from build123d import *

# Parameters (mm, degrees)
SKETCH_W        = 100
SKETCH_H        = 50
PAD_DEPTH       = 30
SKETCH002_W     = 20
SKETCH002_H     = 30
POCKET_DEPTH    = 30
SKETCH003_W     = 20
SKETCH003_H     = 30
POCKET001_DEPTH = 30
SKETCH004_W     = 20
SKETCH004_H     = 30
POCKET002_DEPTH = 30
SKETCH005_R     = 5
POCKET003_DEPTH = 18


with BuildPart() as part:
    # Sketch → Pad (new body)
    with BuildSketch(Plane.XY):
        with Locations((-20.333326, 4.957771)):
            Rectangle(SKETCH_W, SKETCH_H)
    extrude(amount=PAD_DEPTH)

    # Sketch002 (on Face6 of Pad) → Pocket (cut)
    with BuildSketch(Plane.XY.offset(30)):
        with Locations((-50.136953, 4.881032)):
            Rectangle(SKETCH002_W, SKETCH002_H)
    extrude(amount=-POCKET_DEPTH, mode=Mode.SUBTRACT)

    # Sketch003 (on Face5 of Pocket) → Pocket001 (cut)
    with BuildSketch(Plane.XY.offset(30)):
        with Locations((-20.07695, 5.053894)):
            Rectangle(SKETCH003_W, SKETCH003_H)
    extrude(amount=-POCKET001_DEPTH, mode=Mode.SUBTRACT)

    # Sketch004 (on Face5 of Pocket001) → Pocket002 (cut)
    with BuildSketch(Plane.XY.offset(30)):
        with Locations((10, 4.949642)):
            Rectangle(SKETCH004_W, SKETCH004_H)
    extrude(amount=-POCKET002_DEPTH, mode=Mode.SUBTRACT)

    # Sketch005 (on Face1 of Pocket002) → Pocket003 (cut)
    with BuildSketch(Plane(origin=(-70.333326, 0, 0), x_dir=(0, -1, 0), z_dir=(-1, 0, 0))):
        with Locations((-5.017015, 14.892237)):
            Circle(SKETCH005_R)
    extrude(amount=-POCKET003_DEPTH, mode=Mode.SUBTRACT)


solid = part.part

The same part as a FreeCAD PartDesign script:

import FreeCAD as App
import Part
import Sketcher
Q = App.Units.Quantity

doc = App.newDocument("Part")
body = doc.addObject("PartDesign::Body", "Body")

sketch1 = body.newObject("Sketcher::SketchObject", "Sketch")
sketch1.AttachmentSupport = (doc.getObject("XY_Plane"), [""])
sketch1.MapMode = "FlatFace"
sketch1.addGeometry(Part.LineSegment(App.Vector(-70.333326, 29.957771, 0), App.Vector(-70.333326, -20.042229, 0)), False)
sketch1.addGeometry(Part.LineSegment(App.Vector(-70.333326, -20.042229, 0), App.Vector(29.666674, -20.042229, 0)), False)
sketch1.addGeometry(Part.LineSegment(App.Vector(29.666674, -20.042229, 0), App.Vector(29.666674, 29.957771, 0)), False)
sketch1.addGeometry(Part.LineSegment(App.Vector(29.666674, 29.957771, 0), App.Vector(-70.333326, 29.957771, 0)), False)
sketch1.addConstraint(Sketcher.Constraint("Coincident", 0, 2, 1, 1))
sketch1.addConstraint(Sketcher.Constraint("Coincident", 1, 2, 2, 1))
sketch1.addConstraint(Sketcher.Constraint("Coincident", 2, 2, 3, 1))
sketch1.addConstraint(Sketcher.Constraint("Coincident", 3, 2, 0, 1))
sketch1.addConstraint(Sketcher.Constraint("Vertical", 0))
sketch1.addConstraint(Sketcher.Constraint("Horizontal", 1))
sketch1.addConstraint(Sketcher.Constraint("Vertical", 2))
sketch1.addConstraint(Sketcher.Constraint("Horizontal", 3))
sketch1.addConstraint(Sketcher.Constraint("DistanceX", 1, 1, 1, 2, Q("100 mm")))
sketch1.addConstraint(Sketcher.Constraint("DistanceY", 0, 2, 0, 1, Q("50 mm")))
sketch1.addConstraint(Sketcher.Constraint("DistanceY", 0, 2, -1, 1, Q("20.042229 mm")))
sketch1.addConstraint(Sketcher.Constraint("DistanceX", 0, 2, -1, 1, Q("70.333326 mm")))
pad1 = body.newObject("PartDesign::Pad", "Pad")
pad1.Profile = sketch1
pad1.Length = 30

sketch2 = body.newObject("Sketcher::SketchObject", "Sketch001")
sketch2.AttachmentSupport = (doc.getObject("XY_Plane"), [""])
sketch2.MapMode = "FlatFace"
sketch2.AttachmentOffset = App.Placement(App.Vector(0, 0, 30), App.Rotation())
sketch2.addGeometry(Part.LineSegment(App.Vector(-60.136953, 19.881032, 0), App.Vector(-60.136953, -10.118968, 0)), False)
sketch2.addGeometry(Part.LineSegment(App.Vector(-60.136953, -10.118968, 0), App.Vector(-40.136953, -10.118968, 0)), False)
sketch2.addGeometry(Part.LineSegment(App.Vector(-40.136953, -10.118968, 0), App.Vector(-40.136953, 19.881032, 0)), False)
sketch2.addGeometry(Part.LineSegment(App.Vector(-40.136953, 19.881032, 0), App.Vector(-60.136953, 19.881032, 0)), False)
sketch2.addConstraint(Sketcher.Constraint("Coincident", 0, 2, 1, 1))
sketch2.addConstraint(Sketcher.Constraint("Coincident", 1, 2, 2, 1))
sketch2.addConstraint(Sketcher.Constraint("Coincident", 2, 2, 3, 1))
sketch2.addConstraint(Sketcher.Constraint("Coincident", 3, 2, 0, 1))
sketch2.addConstraint(Sketcher.Constraint("Vertical", 0))
sketch2.addConstraint(Sketcher.Constraint("Horizontal", 1))
sketch2.addConstraint(Sketcher.Constraint("Vertical", 2))
sketch2.addConstraint(Sketcher.Constraint("Horizontal", 3))
sketch2.addConstraint(Sketcher.Constraint("DistanceX", 1, 1, 1, 2, Q("20 mm")))
sketch2.addConstraint(Sketcher.Constraint("DistanceY", 0, 2, 0, 1, Q("30 mm")))
sketch2.addConstraint(Sketcher.Constraint("DistanceY", 0, 2, -1, 1, Q("10.118968 mm")))
sketch2.addConstraint(Sketcher.Constraint("DistanceX", 0, 2, -1, 1, Q("60.136953 mm")))
pocket1 = body.newObject("PartDesign::Pocket", "Pocket")
pocket1.Profile = sketch2
pocket1.Length = 30

sketch3 = body.newObject("Sketcher::SketchObject", "Sketch002")
sketch3.AttachmentSupport = (doc.getObject("XY_Plane"), [""])
sketch3.MapMode = "FlatFace"
sketch3.AttachmentOffset = App.Placement(App.Vector(0, 0, 30), App.Rotation())
sketch3.addGeometry(Part.LineSegment(App.Vector(-30.07695, 20.053894, 0), App.Vector(-30.07695, -9.946106, 0)), False)
sketch3.addGeometry(Part.LineSegment(App.Vector(-30.07695, -9.946106, 0), App.Vector(-10.07695, -9.946106, 0)), False)
sketch3.addGeometry(Part.LineSegment(App.Vector(-10.07695, -9.946106, 0), App.Vector(-10.07695, 20.053894, 0)), False)
sketch3.addGeometry(Part.LineSegment(App.Vector(-10.07695, 20.053894, 0), App.Vector(-30.07695, 20.053894, 0)), False)
sketch3.addConstraint(Sketcher.Constraint("Coincident", 0, 2, 1, 1))
sketch3.addConstraint(Sketcher.Constraint("Coincident", 1, 2, 2, 1))
sketch3.addConstraint(Sketcher.Constraint("Coincident", 2, 2, 3, 1))
sketch3.addConstraint(Sketcher.Constraint("Coincident", 3, 2, 0, 1))
sketch3.addConstraint(Sketcher.Constraint("Vertical", 0))
sketch3.addConstraint(Sketcher.Constraint("Horizontal", 1))
sketch3.addConstraint(Sketcher.Constraint("Vertical", 2))
sketch3.addConstraint(Sketcher.Constraint("Horizontal", 3))
sketch3.addConstraint(Sketcher.Constraint("DistanceX", 1, 1, 1, 2, Q("20 mm")))
sketch3.addConstraint(Sketcher.Constraint("DistanceY", 0, 2, 0, 1, Q("30 mm")))
sketch3.addConstraint(Sketcher.Constraint("DistanceX", 0, 2, -1, 1, Q("30.07695 mm")))
sketch3.addConstraint(Sketcher.Constraint("DistanceY", 0, 2, -1, 1, Q("9.946106 mm")))
pocket2 = body.newObject("PartDesign::Pocket", "Pocket001")
pocket2.Profile = sketch3
pocket2.Length = 30

sketch4 = body.newObject("Sketcher::SketchObject", "Sketch003")
sketch4.AttachmentSupport = (doc.getObject("XY_Plane"), [""])
sketch4.MapMode = "FlatFace"
sketch4.AttachmentOffset = App.Placement(App.Vector(0, 0, 30), App.Rotation())
sketch4.addGeometry(Part.LineSegment(App.Vector(0, 19.949642, 0), App.Vector(0, -10.050358, 0)), False)
sketch4.addGeometry(Part.LineSegment(App.Vector(0, -10.050358, 0), App.Vector(20, -10.050358, 0)), False)
sketch4.addGeometry(Part.LineSegment(App.Vector(20, -10.050358, 0), App.Vector(20, 19.949642, 0)), False)
sketch4.addGeometry(Part.LineSegment(App.Vector(20, 19.949642, 0), App.Vector(0, 19.949642, 0)), False)
sketch4.addConstraint(Sketcher.Constraint("Coincident", 0, 2, 1, 1))
sketch4.addConstraint(Sketcher.Constraint("Coincident", 1, 2, 2, 1))
sketch4.addConstraint(Sketcher.Constraint("Coincident", 2, 2, 3, 1))
sketch4.addConstraint(Sketcher.Constraint("Coincident", 3, 2, 0, 1))
sketch4.addConstraint(Sketcher.Constraint("Vertical", 0))
sketch4.addConstraint(Sketcher.Constraint("Horizontal", 1))
sketch4.addConstraint(Sketcher.Constraint("Vertical", 2))
sketch4.addConstraint(Sketcher.Constraint("Horizontal", 3))
sketch4.addConstraint(Sketcher.Constraint("PointOnObject", 0, 2, -2))
sketch4.addConstraint(Sketcher.Constraint("DistanceX", 1, 1, 1, 2, Q("20 mm")))
sketch4.addConstraint(Sketcher.Constraint("DistanceY", 0, 2, 0, 1, Q("30 mm")))
sketch4.addConstraint(Sketcher.Constraint("DistanceY", 0, 2, -1, 1, Q("10.050358 mm")))
pocket3 = body.newObject("PartDesign::Pocket", "Pocket002")
pocket3.Profile = sketch4
pocket3.Length = 30

sketch5 = body.newObject("Sketcher::SketchObject", "Sketch004")
sketch5.AttachmentSupport = (doc.getObject("YZ_Plane"), [""])
sketch5.MapMode = "FlatFace"
sketch5.AttachmentOffset = App.Placement(App.Vector(0, 0, -70.333326), App.Rotation())
sketch5.addGeometry(Part.Circle(App.Vector(5.017015, 14.892237, 0), App.Vector(0, 0, 1), 5), False)
sketch5.addConstraint(Sketcher.Constraint("Diameter", 0, Q("10 mm")))
sketch5.addConstraint(Sketcher.Constraint("DistanceX", -1, 1, 0, 3, Q("5.017015 mm")))
sketch5.addConstraint(Sketcher.Constraint("DistanceY", -1, 1, 0, 3, Q("14.892237 mm")))
pocket4 = body.newObject("PartDesign::Pocket", "Pocket003")
pocket4.Profile = sketch5
pocket4.Length = 18
pocket4.Reversed = True

doc.recompute()
